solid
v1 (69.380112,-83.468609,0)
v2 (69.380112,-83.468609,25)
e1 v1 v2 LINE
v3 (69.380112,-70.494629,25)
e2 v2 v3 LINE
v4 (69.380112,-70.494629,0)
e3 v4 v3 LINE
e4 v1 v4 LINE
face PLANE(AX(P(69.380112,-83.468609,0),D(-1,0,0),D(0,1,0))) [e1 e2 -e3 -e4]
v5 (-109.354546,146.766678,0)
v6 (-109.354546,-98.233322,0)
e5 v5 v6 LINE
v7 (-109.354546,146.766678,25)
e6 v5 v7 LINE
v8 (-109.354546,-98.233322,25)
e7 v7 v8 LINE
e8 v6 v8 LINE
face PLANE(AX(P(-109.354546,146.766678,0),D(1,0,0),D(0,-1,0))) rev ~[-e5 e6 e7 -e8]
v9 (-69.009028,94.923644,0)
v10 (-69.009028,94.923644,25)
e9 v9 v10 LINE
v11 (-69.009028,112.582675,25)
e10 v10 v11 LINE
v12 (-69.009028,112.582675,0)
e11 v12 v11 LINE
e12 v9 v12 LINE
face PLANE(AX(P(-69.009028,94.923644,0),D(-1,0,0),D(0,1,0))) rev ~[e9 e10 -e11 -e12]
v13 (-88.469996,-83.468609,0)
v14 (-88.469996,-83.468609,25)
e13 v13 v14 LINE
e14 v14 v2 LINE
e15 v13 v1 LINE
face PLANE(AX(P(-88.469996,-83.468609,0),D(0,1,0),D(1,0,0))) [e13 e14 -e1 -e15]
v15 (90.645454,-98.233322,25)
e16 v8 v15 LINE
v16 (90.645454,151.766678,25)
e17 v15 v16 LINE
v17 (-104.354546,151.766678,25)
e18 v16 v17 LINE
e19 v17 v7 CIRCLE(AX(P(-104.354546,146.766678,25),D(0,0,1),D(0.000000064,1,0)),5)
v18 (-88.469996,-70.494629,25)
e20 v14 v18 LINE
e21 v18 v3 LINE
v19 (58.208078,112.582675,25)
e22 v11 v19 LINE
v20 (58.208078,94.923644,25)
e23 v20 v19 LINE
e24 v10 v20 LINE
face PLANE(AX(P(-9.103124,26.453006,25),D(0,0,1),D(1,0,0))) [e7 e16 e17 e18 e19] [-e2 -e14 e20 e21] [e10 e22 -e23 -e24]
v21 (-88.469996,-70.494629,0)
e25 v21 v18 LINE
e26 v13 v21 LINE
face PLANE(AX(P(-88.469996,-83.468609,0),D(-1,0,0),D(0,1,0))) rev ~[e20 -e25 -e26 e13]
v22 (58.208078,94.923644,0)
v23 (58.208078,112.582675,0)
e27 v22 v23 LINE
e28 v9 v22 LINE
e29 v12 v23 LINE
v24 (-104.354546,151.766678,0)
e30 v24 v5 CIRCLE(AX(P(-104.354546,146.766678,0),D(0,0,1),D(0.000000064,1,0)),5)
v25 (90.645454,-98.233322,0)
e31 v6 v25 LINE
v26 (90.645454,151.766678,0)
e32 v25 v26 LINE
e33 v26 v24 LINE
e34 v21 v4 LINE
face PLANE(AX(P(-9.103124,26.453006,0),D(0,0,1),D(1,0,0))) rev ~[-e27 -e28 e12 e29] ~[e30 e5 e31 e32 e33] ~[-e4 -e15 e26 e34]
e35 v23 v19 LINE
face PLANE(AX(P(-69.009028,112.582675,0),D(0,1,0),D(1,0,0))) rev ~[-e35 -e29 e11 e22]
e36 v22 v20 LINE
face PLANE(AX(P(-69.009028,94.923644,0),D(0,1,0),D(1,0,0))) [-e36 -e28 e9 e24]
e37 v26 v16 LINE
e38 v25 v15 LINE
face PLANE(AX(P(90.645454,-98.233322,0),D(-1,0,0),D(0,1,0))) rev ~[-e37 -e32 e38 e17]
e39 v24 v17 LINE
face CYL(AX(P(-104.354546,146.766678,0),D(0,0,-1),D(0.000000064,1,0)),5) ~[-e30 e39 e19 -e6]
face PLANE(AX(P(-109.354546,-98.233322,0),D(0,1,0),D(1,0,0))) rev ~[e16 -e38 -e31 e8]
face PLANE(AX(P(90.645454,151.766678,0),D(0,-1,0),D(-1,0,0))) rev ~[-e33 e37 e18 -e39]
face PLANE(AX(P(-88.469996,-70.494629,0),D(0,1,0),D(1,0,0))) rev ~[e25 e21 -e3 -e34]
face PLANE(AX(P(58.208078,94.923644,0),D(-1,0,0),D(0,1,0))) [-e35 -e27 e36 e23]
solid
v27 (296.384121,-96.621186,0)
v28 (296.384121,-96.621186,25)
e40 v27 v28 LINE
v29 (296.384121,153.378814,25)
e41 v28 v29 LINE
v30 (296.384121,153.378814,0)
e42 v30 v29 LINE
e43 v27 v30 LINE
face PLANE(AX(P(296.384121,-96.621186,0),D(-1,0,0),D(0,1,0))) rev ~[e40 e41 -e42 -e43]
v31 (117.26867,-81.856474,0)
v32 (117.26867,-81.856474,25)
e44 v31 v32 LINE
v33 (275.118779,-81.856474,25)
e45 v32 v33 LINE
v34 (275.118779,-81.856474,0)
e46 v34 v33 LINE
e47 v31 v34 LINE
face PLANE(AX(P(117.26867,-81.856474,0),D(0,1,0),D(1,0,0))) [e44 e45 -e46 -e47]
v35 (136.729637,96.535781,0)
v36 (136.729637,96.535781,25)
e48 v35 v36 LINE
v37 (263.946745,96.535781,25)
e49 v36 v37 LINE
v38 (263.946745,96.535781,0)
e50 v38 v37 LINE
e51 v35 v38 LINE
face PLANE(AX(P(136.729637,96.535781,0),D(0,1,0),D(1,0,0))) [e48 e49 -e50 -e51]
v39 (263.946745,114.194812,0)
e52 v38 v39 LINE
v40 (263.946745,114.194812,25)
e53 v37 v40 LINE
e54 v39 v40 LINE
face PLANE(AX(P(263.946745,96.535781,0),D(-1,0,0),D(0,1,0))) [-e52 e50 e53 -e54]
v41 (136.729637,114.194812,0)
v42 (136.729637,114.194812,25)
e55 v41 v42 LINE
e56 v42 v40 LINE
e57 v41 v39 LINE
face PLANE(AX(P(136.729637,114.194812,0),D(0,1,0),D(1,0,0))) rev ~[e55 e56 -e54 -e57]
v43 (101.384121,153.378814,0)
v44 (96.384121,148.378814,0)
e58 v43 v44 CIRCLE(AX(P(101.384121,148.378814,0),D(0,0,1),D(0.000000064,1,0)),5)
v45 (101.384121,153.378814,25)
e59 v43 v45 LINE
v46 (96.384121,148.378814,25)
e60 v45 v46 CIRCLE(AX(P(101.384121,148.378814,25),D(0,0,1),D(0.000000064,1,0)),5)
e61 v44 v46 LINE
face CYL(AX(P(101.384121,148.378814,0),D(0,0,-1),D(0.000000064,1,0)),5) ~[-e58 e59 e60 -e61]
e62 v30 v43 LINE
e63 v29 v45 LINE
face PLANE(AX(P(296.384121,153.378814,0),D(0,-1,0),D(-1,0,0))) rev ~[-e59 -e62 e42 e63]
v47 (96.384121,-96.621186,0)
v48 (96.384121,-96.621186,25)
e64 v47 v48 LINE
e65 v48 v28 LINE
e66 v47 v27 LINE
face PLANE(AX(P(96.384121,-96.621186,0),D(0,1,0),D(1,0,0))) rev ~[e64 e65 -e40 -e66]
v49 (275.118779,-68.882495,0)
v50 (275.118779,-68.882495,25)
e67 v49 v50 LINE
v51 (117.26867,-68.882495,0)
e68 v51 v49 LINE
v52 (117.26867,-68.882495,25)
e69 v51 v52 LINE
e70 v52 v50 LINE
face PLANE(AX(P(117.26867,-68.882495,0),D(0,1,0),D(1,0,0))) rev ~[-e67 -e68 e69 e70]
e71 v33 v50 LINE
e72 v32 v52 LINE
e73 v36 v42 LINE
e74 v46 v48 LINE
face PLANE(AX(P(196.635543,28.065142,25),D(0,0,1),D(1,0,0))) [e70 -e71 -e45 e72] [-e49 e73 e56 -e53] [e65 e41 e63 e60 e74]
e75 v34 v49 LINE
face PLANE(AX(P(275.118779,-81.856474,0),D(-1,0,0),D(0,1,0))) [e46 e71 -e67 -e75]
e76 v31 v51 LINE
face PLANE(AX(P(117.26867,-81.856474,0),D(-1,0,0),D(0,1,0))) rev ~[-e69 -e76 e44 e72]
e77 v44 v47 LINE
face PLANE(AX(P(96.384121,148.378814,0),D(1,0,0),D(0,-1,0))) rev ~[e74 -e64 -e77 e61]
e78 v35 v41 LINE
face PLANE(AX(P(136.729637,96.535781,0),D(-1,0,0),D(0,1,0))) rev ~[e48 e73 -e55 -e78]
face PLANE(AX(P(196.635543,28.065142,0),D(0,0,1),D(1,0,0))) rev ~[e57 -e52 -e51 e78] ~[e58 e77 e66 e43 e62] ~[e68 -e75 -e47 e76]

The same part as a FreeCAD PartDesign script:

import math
import FreeCAD as App
import Part
import Sketcher
from FreeCAD import Vector
Q = App.Units.Quantity


def add_polygon(sketch, points):
    """Adds a closed chain of lines whose ends are joined by coincident constraints."""
    first, n = sketch.GeometryCount, len(points)
    for a, b in zip(points, points[1:] + points[:1]):
        sketch.addGeometry(Part.LineSegment(App.Vector(*a, 0), App.Vector(*b, 0)), False)
    for i in range(n):
        sketch.addConstraint(Sketcher.Constraint("Coincident", first + i, 2, first + (i + 1) % n, 1))

doc = App.newDocument("Part")
body = doc.addObject("PartDesign::Body", "Body")
body.AllowCompound = True

# Sketch on XY plane
sketch1 = body.newObject("Sketcher::SketchObject", "Sketch")
sketch1.AttachmentSupport = (doc.getObject("XY_Plane"), [""])
sketch1.MapMode = "FlatFace"
sketch1.addGeometry(Part.LineSegment(Vector(296.4, 153.4, 0), Vector(101.4, 153.4, 0)), False)  # 0
sketch1.addGeometry(Part.ArcOfCircle(Part.Circle(Vector(101.4, 148.4, 0), Vector(0, 0, 1), 5), math.radians(90), math.radians(180)), False)  # 1
sketch1.addGeometry(Part.LineSegment(Vector(96.4, 148.4, 0), Vector(96.4, -96.6, 0)), False)  # 2
sketch1.addGeometry(Part.LineSegment(Vector(96.4, -96.6, 0), Vector(296.4, -96.6, 0)), False)  # 3
sketch1.addGeometry(Part.LineSegment(Vector(296.4, -96.6, 0), Vector(296.4, 153.4, 0)), False)  # 4
add_polygon(sketch1, [(275.1, -81.9), (117.3, -81.9), (117.3, -68.9), (275.1, -68.9)])  # lines 5-8
add_polygon(sketch1, [(263.9, 96.5), (136.7, 96.5), (136.7, 114.2), (263.9, 114.2)])  # lines 9-12
sketch1.addGeometry(Part.LineSegment(Vector(90.6, 151.8, 0), Vector(-104.4, 151.8, 0)), False)  # 13
sketch1.addGeometry(Part.ArcOfCircle(Part.Circle(Vector(-104.4, 146.8, 0), Vector(0, 0, 1), 5), math.radians(90), math.radians(180)), False)  # 14
sketch1.addGeometry(Part.LineSegment(Vector(-109.4, 146.8, 0), Vector(-109.4, -98.2, 0)), False)  # 15
sketch1.addGeometry(Part.LineSegment(Vector(-109.4, -98.2, 0), Vector(90.6, -98.2, 0)), False)  # 16
sketch1.addGeometry(Part.LineSegment(Vector(90.6, -98.2, 0), Vector(90.6, 151.8, 0)), False)  # 17
add_polygon(sketch1, [(69.4, -83.5), (-88.5, -83.5), (-88.5, -70.5), (69.4, -70.5)])  # lines 18-21
add_polygon(sketch1, [(58.2, 94.9), (-69, 94.9), (-69, 112.6), (58.2, 112.6)])  # lines 22-25
sketch1.addConstraint(Sketcher.Constraint("Tangent", 0, 2, 1, 1))
sketch1.addConstraint(Sketcher.Constraint("Tangent", 1, 2, 2, 1))
sketch1.addConstraint(Sketcher.Constraint("Coincident", 2, 2, 3, 1))
sketch1.addConstraint(Sketcher.Constraint("Coincident", 3, 2, 4, 1))
sketch1.addConstraint(Sketcher.Constraint("Coincident", 4, 2, 0, 1))
sketch1.addConstraint(Sketcher.Constraint("Tangent", 13, 2, 14, 1))
sketch1.addConstraint(Sketcher.Constraint("Tangent", 14, 2, 15, 1))
sketch1.addConstraint(Sketcher.Constraint("Coincident", 15, 2, 16, 1))
sketch1.addConstraint(Sketcher.Constraint("Coincident", 16, 2, 17, 1))
sketch1.addConstraint(Sketcher.Constraint("Coincident", 17, 2, 13, 1))
sketch1.addConstraint(Sketcher.Constraint("Horizontal", 0))
sketch1.addConstraint(Sketcher.Constraint("Vertical", 2))
sketch1.addConstraint(Sketcher.Constraint("Horizontal", 3))
sketch1.addConstraint(Sketcher.Constraint("Vertical", 4))
sketch1.addConstraint(Sketcher.Constraint("Horizontal", 5))
sketch1.addConstraint(Sketcher.Constraint("Vertical", 6))
sketch1.addConstraint(Sketcher.Constraint("Horizontal", 7))
sketch1.addConstraint(Sketcher.Constraint("Vertical", 8))
sketch1.addConstraint(Sketcher.Constraint("Horizontal", 9))
sketch1.addConstraint(Sketcher.Constraint("Vertical", 10))
sketch1.addConstraint(Sketcher.Constraint("Horizontal", 11))
sketch1.addConstraint(Sketcher.Constraint("Vertical", 12))
sketch1.addConstraint(Sketcher.Constraint("Horizontal", 13))
sketch1.addConstraint(Sketcher.Constraint("Vertical", 15))
sketch1.addConstraint(Sketcher.Constraint("Horizontal", 16))
sketch1.addConstraint(Sketcher.Constraint("Vertical", 17))
sketch1.addConstraint(Sketcher.Constraint("Horizontal", 18))
sketch1.addConstraint(Sketcher.Constraint("Vertical", 19))
sketch1.addConstraint(Sketcher.Constraint("Horizontal", 20))
sketch1.addConstraint(Sketcher.Constraint("Vertical", 21))
sketch1.addConstraint(Sketcher.Constraint("Horizontal", 22))
sketch1.addConstraint(Sketcher.Constraint("Vertical", 23))
sketch1.addConstraint(Sketcher.Constraint("Horizontal", 24))
sketch1.addConstraint(Sketcher.Constraint("Vertical", 25))
sketch1.addConstraint(Sketcher.Constraint("Equal", 1, 14))
sketch1.addConstraint(Sketcher.Constraint("Equal", 0, 13))
sketch1.addConstraint(Sketcher.Constraint("Equal", 7, 18))
sketch1.addConstraint(Sketcher.Constraint("Equal", 11, 22))
sketch1.addConstraint(Sketcher.Constraint("Equal", 2, 15))
sketch1.addConstraint(Sketcher.Constraint("Equal", 8, 19))
sketch1.addConstraint(Sketcher.Constraint("Equal", 12, 23))
sketch1.addConstraint(Sketcher.Constraint("Radius", 1, Q("5 mm")))
sketch1.addConstraint(Sketcher.Constraint("DistanceX", 0, 2, 0, 1, Q("195 mm")))
sketch1.addConstraint(Sketcher.Constraint("DistanceY", 2, 2, 2, 1, Q("245 mm")))
sketch1.addConstraint(Sketcher.Constraint("DistanceX", 5, 2, 5, 1, Q("157.850109 mm")))
sketch1.addConstraint(Sketcher.Constraint("DistanceY", 6, 1, 6, 2, Q("12.973979 mm")))
sketch1.addConstraint(Sketcher.Constraint("DistanceY", 10, 1, 10, 2, Q("17.659031 mm")))
sketch1.addConstraint(Sketcher.Constraint("DistanceX", 9, 2, 9, 1, Q("127.217107 mm")))
sketch1.addConstraint(Sketcher.Constraint("DistanceX", -1, 1, 1, 3, Q("101.384121 mm")))
sketch1.addConstraint(Sketcher.Constraint("DistanceY", -1, 1, 14, 3, Q("146.766678 mm")))
sketch1.addConstraint(Sketcher.Constraint("DistanceX", -1, 1, 5, 2, Q("117.26867 mm")))
sketch1.addConstraint(Sketcher.Constraint("DistanceY", -1, 1, 9, 2, Q("96.535781 mm")))
sketch1.addConstraint(Sketcher.Constraint("DistanceY", 18, 2, -1, 1, Q("83.468609 mm")))
sketch1.addConstraint(Sketcher.Constraint("DistanceX", 22, 2, -1, 1, Q("69.009028 mm")))
sketch1.addConstraint(Sketcher.Constraint("DistanceY", 2, 2, 6, 2, Q("27.738691 mm")))
sketch1.addConstraint(Sketcher.Constraint("DistanceY", 15, 2, 5, 2, Q("16.376848 mm")))
sketch1.addConstraint(Sketcher.Constraint("DistanceX", 15, 2, 18, 2, Q("20.88455 mm")))
sketch1.addConstraint(Sketcher.Constraint("DistanceX", 20, 2, 2, 2, Q("27.004008 mm")))
sketch1.addConstraint(Sketcher.Constraint("DistanceY", 24, 2, 1, 2, Q("35.796139 mm")))
sketch1.addConstraint(Sketcher.Constraint("DistanceX", 24, 2, 10, 2, Q("78.521559 mm")))
pad1 = body.newObject("PartDesign::Pad", "Pad")
pad1.Profile = sketch1
pad1.Length = 25

doc.recompute()
